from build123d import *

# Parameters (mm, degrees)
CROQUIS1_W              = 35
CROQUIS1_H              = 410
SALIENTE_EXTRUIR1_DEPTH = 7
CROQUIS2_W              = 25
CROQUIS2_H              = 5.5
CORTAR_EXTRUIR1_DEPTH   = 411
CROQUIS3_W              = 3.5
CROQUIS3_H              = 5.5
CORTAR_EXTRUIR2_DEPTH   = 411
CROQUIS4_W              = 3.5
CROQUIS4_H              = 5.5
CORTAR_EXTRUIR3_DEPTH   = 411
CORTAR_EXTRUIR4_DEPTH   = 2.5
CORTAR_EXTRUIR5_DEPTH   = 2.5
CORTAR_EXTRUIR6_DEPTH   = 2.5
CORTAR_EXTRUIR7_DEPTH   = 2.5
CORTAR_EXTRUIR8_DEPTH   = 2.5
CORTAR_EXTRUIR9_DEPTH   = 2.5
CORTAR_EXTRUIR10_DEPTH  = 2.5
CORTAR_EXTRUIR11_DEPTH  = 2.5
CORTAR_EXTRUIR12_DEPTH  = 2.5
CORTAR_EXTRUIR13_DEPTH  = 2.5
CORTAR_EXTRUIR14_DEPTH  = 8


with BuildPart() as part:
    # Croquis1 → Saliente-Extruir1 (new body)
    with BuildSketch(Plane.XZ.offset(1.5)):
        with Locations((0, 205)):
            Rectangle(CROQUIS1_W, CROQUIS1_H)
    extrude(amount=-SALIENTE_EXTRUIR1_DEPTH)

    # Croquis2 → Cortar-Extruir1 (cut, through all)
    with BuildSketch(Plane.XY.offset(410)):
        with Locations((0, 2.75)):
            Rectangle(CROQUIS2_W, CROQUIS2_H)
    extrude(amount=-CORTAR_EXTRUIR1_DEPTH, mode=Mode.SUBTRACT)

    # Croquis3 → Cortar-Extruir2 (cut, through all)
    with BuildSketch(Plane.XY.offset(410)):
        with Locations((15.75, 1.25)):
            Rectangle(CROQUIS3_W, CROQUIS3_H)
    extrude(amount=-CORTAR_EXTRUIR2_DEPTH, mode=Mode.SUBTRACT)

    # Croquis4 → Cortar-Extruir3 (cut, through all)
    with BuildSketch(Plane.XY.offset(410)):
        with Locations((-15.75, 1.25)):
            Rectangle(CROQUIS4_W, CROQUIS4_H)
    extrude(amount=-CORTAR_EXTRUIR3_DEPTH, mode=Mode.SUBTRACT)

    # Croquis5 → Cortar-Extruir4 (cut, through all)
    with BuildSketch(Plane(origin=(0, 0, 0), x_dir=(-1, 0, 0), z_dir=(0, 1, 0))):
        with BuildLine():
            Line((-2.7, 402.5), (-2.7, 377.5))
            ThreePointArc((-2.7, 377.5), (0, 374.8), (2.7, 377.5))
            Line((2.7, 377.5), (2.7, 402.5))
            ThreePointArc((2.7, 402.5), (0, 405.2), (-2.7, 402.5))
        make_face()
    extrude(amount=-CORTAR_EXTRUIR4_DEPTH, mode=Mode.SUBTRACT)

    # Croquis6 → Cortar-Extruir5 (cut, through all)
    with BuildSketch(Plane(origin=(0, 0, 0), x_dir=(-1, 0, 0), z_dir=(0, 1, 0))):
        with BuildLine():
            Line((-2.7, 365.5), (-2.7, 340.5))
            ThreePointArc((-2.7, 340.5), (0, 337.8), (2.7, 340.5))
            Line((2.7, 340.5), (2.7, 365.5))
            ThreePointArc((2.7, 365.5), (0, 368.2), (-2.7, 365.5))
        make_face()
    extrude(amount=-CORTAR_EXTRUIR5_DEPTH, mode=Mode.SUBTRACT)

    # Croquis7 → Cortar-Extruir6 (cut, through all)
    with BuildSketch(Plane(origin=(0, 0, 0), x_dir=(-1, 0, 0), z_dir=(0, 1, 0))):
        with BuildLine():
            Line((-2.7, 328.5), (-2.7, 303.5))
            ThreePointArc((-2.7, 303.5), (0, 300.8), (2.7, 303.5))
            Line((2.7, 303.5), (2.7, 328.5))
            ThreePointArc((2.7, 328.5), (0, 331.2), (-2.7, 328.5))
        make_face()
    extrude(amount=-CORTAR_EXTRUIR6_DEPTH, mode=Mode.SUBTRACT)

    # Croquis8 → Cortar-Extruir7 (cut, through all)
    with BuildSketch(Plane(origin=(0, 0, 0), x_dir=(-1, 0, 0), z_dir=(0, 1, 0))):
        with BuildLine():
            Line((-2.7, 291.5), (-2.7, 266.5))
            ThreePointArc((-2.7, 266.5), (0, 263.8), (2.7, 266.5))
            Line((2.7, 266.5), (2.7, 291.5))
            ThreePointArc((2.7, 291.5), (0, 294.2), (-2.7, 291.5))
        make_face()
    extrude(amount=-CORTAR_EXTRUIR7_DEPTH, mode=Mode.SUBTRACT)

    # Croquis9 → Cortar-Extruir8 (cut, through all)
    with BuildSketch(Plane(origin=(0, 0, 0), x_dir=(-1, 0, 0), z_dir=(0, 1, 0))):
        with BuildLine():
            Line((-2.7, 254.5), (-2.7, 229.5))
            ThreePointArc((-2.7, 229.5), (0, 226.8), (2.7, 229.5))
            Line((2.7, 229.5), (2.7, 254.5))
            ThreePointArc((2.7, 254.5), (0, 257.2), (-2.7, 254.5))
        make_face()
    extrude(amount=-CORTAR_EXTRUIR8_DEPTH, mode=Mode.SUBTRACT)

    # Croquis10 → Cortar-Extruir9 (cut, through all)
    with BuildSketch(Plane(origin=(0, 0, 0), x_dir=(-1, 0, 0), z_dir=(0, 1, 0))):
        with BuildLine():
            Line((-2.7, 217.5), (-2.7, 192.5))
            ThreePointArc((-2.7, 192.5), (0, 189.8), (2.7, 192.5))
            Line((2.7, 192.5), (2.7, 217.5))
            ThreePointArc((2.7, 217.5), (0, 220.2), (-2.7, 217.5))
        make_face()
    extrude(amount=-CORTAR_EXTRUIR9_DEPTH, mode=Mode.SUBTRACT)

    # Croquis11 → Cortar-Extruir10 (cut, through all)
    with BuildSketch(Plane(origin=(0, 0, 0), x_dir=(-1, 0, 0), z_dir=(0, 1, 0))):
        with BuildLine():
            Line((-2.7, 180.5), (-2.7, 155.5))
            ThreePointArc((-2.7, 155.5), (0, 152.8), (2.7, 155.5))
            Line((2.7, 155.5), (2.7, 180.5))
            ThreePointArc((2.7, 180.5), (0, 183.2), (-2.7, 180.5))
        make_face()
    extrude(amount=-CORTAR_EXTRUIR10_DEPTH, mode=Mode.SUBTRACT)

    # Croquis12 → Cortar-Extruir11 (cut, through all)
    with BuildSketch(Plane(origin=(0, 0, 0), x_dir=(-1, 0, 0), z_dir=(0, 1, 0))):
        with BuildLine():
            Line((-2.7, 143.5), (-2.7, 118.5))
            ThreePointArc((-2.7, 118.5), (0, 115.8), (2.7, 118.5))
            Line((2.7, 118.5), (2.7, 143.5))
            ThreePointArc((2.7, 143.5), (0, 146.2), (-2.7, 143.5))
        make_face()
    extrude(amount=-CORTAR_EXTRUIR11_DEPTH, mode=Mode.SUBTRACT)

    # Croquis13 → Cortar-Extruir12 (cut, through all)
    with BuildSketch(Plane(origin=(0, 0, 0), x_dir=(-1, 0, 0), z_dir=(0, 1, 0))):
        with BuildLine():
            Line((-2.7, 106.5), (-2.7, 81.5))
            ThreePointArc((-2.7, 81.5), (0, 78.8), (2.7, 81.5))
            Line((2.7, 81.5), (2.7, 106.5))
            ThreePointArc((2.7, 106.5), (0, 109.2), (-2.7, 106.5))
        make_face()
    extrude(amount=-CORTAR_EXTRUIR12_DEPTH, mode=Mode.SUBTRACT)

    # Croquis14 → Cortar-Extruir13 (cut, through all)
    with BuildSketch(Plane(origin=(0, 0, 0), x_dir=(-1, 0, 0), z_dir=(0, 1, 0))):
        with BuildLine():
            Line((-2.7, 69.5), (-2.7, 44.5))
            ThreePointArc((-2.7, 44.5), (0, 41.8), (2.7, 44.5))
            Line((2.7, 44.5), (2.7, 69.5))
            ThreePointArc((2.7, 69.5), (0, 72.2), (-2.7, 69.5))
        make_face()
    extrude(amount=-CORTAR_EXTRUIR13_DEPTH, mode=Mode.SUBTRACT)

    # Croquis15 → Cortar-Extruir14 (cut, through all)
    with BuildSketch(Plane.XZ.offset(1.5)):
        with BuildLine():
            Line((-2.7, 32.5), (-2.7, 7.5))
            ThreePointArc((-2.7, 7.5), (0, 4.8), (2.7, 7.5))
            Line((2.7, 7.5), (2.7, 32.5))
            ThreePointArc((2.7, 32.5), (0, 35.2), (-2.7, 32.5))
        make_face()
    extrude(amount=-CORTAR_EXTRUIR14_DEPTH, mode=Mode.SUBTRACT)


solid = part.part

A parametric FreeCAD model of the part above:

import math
import FreeCAD as App
import Part
import Sketcher
from FreeCAD import Vector
Q = App.Units.Quantity

doc = App.newDocument("Part")
body = doc.addObject("PartDesign::Body", "Body")

sketch1 = body.newObject("Sketcher::SketchObject", "Sketch")
sketch1.AttachmentSupport = (doc.getObject("XZ_Plane"), [""])
sketch1.MapMode = "FlatFace"
sketch1.AttachmentOffset = App.Placement(Vector(0, 0, 1.5), App.Rotation())
sketch1.addGeometry([
    Part.LineSegment(Vector(-18, 410, 0), Vector(-18, 0, 0)),
    Part.LineSegment(Vector(-18, 0, 0), Vector(18, 0, 0)),
    Part.LineSegment(Vector(18, 0, 0), Vector(18, 410, 0)),
    Part.LineSegment(Vector(18, 410, 0), Vector(-18, 410, 0)),
], False)
sketch1.addConstraint([
    Sketcher.Constraint("Coincident", 0, 2, 1, 1),
    Sketcher.Constraint("Coincident", 1, 2, 2, 1),
    Sketcher.Constraint("Coincident", 2, 2, 3, 1),
    Sketcher.Constraint("Coincident", 3, 2, 0, 1),
    Sketcher.Constraint("Vertical", 0),
    Sketcher.Constraint("Horizontal", 1),
    Sketcher.Constraint("Vertical", 2),
    Sketcher.Constraint("Horizontal", 3),
    Sketcher.Constraint("Symmetric", 0, 2, 1, 2, -1, 1),
    Sketcher.Constraint("DistanceX", 1, 1, 1, 2, Q("35 mm")),
    Sketcher.Constraint("DistanceY", 0, 2, 0, 1, Q("410 mm")),
])
pad1 = body.newObject("PartDesign::Pad", "Pad")
pad1.Profile = sketch1
pad1.Length = 7
pad1.Reversed = True

sketch2 = body.newObject("Sketcher::SketchObject", "Sketch001")
sketch2.AttachmentSupport = (doc.getObject("XY_Plane"), [""])
sketch2.MapMode = "FlatFace"
sketch2.AttachmentOffset = App.Placement(Vector(0, 0, 410), App.Rotation())
sketch2.addGeometry([
    Part.LineSegment(Vector(-12, 6, 0), Vector(-12, 0, 0)),
    Part.LineSegment(Vector(-12, 0, 0), Vector(12, 0, 0)),
    Part.LineSegment(Vector(12, 0, 0), Vector(12, 6, 0)),
    Part.LineSegment(Vector(12, 6, 0), Vector(-12, 6, 0)),
], False)
sketch2.addConstraint([
    Sketcher.Constraint("Coincident", 0, 2, 1, 1),
    Sketcher.Constraint("Coincident", 1, 2, 2, 1),
    Sketcher.Constraint("Coincident", 2, 2, 3, 1),
    Sketcher.Constraint("Coincident", 3, 2, 0, 1),
    Sketcher.Constraint("Vertical", 0),
    Sketcher.Constraint("Horizontal", 1),
    Sketcher.Constraint("Vertical", 2),
    Sketcher.Constraint("Horizontal", 3),
    Sketcher.Constraint("Symmetric", 0, 2, 1, 2, -1, 1),
    Sketcher.Constraint("DistanceX", 1, 1, 1, 2, Q("25 mm")),
    Sketcher.Constraint("DistanceY", 0, 2, 0, 1, Q("5.5 mm")),
])
pocket1 = body.newObject("PartDesign::Pocket", "Pocket")
pocket1.Profile = sketch2
pocket1.Type = "ThroughAll"

sketch3 = body.newObject("Sketcher::SketchObject", "Sketch002")
sketch3.AttachmentSupport = (doc.getObject("XY_Plane"), [""])
sketch3.MapMode = "FlatFace"
sketch3.AttachmentOffset = App.Placement(Vector(0, 0, 410), App.Rotation())
sketch3.addGeometry([
    Part.LineSegment(Vector(14, 4, 0), Vector(14, -1.5, 0)),
    Part.LineSegment(Vector(14, -1.5, 0), Vector(17.5, -1.5, 0)),
    Part.LineSegment(Vector(17.5, -1.5, 0), Vector(17.5, 4, 0)),
    Part.LineSegment(Vector(17.5, 4, 0), Vector(14, 4, 0)),
], False)
sketch3.addConstraint([
    Sketcher.Constraint("Coincident", 0, 2, 1, 1),
    Sketcher.Constraint("Coincident", 1, 2, 2, 1),
    Sketcher.Constraint("Coincident", 2, 2, 3, 1),
    Sketcher.Constraint("Coincident", 3, 2, 0, 1),
    Sketcher.Constraint("Vertical", 0),
    Sketcher.Constraint("Horizontal", 1),
    Sketcher.Constraint("Vertical", 2),
    Sketcher.Constraint("Horizontal", 3),
    Sketcher.Constraint("DistanceX", 1, 1, 1, 2, Q("3.5 mm")),
    Sketcher.Constraint("DistanceY", 0, 2, 0, 1, Q("5.5 mm")),
    Sketcher.Constraint("DistanceX", -1, 1, 0, 2, Q("14 mm")),
    Sketcher.Constraint("DistanceY", -1, 1, 2, 2, Q("4 mm")),
])
pocket2 = body.newObject("PartDesign::Pocket", "Pocket001")
pocket2.Profile = sketch3
pocket2.Type = "ThroughAll"

sketch4 = body.newObject("Sketcher::SketchObject", "Sketch003")
sketch4.AttachmentSupport = (doc.getObject("XY_Plane"), [""])
sketch4.MapMode = "FlatFace"
sketch4.AttachmentOffset = App.Placement(Vector(0, 0, 410), App.Rotation())
sketch4.addGeometry([
    Part.LineSegment(Vector(-17.5, 4, 0), Vector(-17.5, -1.5, 0)),
    Part.LineSegment(Vector(-17.5, -1.5, 0), Vector(-14, -1.5, 0)),
    Part.LineSegment(Vector(-14, -1.5, 0), Vector(-14, 4, 0)),
    Part.LineSegment(Vector(-14, 4, 0), Vector(-17.5, 4, 0)),
], False)
sketch4.addConstraint([
    Sketcher.Constraint("Coincident", 0, 2, 1, 1),
    Sketcher.Constraint("Coincident", 1, 2, 2, 1),
    Sketcher.Constraint("Coincident", 2, 2, 3, 1),
    Sketcher.Constraint("Coincident", 3, 2, 0, 1),
    Sketcher.Constraint("Vertical", 0),
    Sketcher.Constraint("Horizontal", 1),
    Sketcher.Constraint("Vertical", 2),
    Sketcher.Constraint("Horizontal", 3),
    Sketcher.Constraint("DistanceX", 1, 1, 1, 2, Q("3.5 mm")),
    Sketcher.Constraint("DistanceY", 0, 2, 0, 1, Q("5.5 mm")),
    Sketcher.Constraint("DistanceX", 1, 2, -1, 1, Q("14 mm")),
    Sketcher.Constraint("DistanceY", -1, 1, 2, 2, Q("4 mm")),
])
pocket3 = body.newObject("PartDesign::Pocket", "Pocket002")
pocket3.Profile = sketch4
pocket3.Type = "ThroughAll"

sketch5 = body.newObject("Sketcher::SketchObject", "Sketch004")
sketch5.AttachmentSupport = (doc.getObject("XZ_Plane"), [""])
sketch5.MapMode = "FlatFace"
sketch5.addGeometry([
    Part.LineSegment(Vector(2.7, 402.5, 0), Vector(2.7, 377.5, 0)),
    Part.ArcOfCircle(Part.Circle(Vector(0, 377.5, 0), Vector(0, 0, 1), 2.7), math.radians(180), math.radians(360)),
    Part.LineSegment(Vector(-2.7, 377.5, 0), Vector(-2.7, 402.5, 0)),
    Part.ArcOfCircle(Part.Circle(Vector(0, 402.5, 0), Vector(0, 0, 1), 2.7), math.radians(0), math.radians(180)),
], False)
sketch5.addConstraint([
    Sketcher.Constraint("Tangent", 0, 2, 1, 2),
    Sketcher.Constraint("Tangent", 1, 1, 2, 1),
    Sketcher.Constraint("Tangent", 2, 2, 3, 2),
    Sketcher.Constraint("Tangent", 3, 1, 0, 1),
    Sketcher.Constraint("Vertical", 0),
    Sketcher.Constraint("Vertical", 2),
    Sketcher.Constraint("PointOnObject", 1, 3, -2),
    Sketcher.Constraint("Radius", 1, Q("2.7 mm")),
    Sketcher.Constraint("DistanceY", 0, 2, 0, 1, Q("25 mm")),
    Sketcher.Constraint("DistanceY", -1, 1, 1, 3, Q("377.5 mm")),
])
pocket4 = body.newObject("PartDesign::Pocket", "Pocket003")
pocket4.Profile = sketch5
pocket4.Type = "ThroughAll"
pocket4.Reversed = True

sketch6 = body.newObject("Sketcher::SketchObject", "Sketch005")
sketch6.AttachmentSupport = (doc.getObject("XZ_Plane"), [""])
sketch6.MapMode = "FlatFace"
sketch6.addGeometry([
    Part.LineSegment(Vector(2.7, 365.5, 0), Vector(2.7, 340.5, 0)),
    Part.ArcOfCircle(Part.Circle(Vector(0, 340.5, 0), Vector(0, 0, 1), 2.7), math.radians(180), math.radians(360)),
    Part.LineSegment(Vector(-2.7, 340.5, 0), Vector(-2.7, 365.5, 0)),
    Part.ArcOfCircle(Part.Circle(Vector(0, 365.5, 0), Vector(0, 0, 1), 2.7), math.radians(0), math.radians(180)),
], False)
sketch6.addConstraint([
    Sketcher.Constraint("Tangent", 0, 2, 1, 2),
    Sketcher.Constraint("Tangent", 1, 1, 2, 1),
    Sketcher.Constraint("Tangent", 2, 2, 3, 2),
    Sketcher.Constraint("Tangent", 3, 1, 0, 1),
    Sketcher.Constraint("Vertical", 0),
    Sketcher.Constraint("Vertical", 2),
    Sketcher.Constraint("PointOnObject", 1, 3, -2),
    Sketcher.Constraint("Radius", 1, Q("2.7 mm")),
    Sketcher.Constraint("DistanceY", 0, 2, 0, 1, Q("25 mm")),
    Sketcher.Constraint("DistanceY", -1, 1, 1, 3, Q("340.5 mm")),
])
pocket5 = body.newObject("PartDesign::Pocket", "Pocket004")
pocket5.Profile = sketch6
pocket5.Type = "ThroughAll"
pocket5.Reversed = True

sketch7 = body.newObject("Sketcher::SketchObject", "Sketch006")
sketch7.AttachmentSupport = (doc.getObject("XZ_Plane"), [""])
sketch7.MapMode = "FlatFace"
sketch7.addGeometry([
    Part.LineSegment(Vector(2.7, 328.5, 0), Vector(2.7, 303.5, 0)),
    Part.ArcOfCircle(Part.Circle(Vector(0, 303.5, 0), Vector(0, 0, 1), 2.7), math.radians(180), math.radians(360)),
    Part.LineSegment(Vector(-2.7, 303.5, 0), Vector(-2.7, 328.5, 0)),
    Part.ArcOfCircle(Part.Circle(Vector(0, 328.5, 0), Vector(0, 0, 1), 2.7), math.radians(0), math.radians(180)),
], False)
sketch7.addConstraint([
    Sketcher.Constraint("Tangent", 0, 2, 1, 2),
    Sketcher.Constraint("Tangent", 1, 1, 2, 1),
    Sketcher.Constraint("Tangent", 2, 2, 3, 2),
    Sketcher.Constraint("Tangent", 3, 1, 0, 1),
    Sketcher.Constraint("Vertical", 0),
    Sketcher.Constraint("Vertical", 2),
    Sketcher.Constraint("PointOnObject", 1, 3, -2),
    Sketcher.Constraint("Radius", 1, Q("2.7 mm")),
    Sketcher.Constraint("DistanceY", 0, 2, 0, 1, Q("25 mm")),
    Sketcher.Constraint("DistanceY", -1, 1, 1, 3, Q("303.5 mm")),
])
pocket6 = body.newObject("PartDesign::Pocket", "Pocket005")
pocket6.Profile = sketch7
pocket6.Type = "ThroughAll"
pocket6.Reversed = True

sketch8 = body.newObject("Sketcher::SketchObject", "Sketch007")
sketch8.AttachmentSupport = (doc.getObject("XZ_Plane"), [""])
sketch8.MapMode = "FlatFace"
sketch8.addGeometry([
    Part.LineSegment(Vector(2.7, 291.5, 0), Vector(2.7, 266.5, 0)),
    Part.ArcOfCircle(Part.Circle(Vector(0, 266.5, 0), Vector(0, 0, 1), 2.7), math.radians(180), math.radians(360)),
    Part.LineSegment(Vector(-2.7, 266.5, 0), Vector(-2.7, 291.5, 0)),
    Part.ArcOfCircle(Part.Circle(Vector(0, 291.5, 0), Vector(0, 0, 1), 2.7), math.radians(0), math.radians(180)),
], False)
sketch8.addConstraint([
    Sketcher.Constraint("Tangent", 0, 2, 1, 2),
    Sketcher.Constraint("Tangent", 1, 1, 2, 1),
    Sketcher.Constraint("Tangent", 2, 2, 3, 2),
    Sketcher.Constraint("Tangent", 3, 1, 0, 1),
    Sketcher.Constraint("Vertical", 0),
    Sketcher.Constraint("Vertical", 2),
    Sketcher.Constraint("PointOnObject", 1, 3, -2),
    Sketcher.Constraint("Radius", 1, Q("2.7 mm")),
    Sketcher.Constraint("DistanceY", 0, 2, 0, 1, Q("25 mm")),
    Sketcher.Constraint("DistanceY", -1, 1, 1, 3, Q("266.5 mm")),
])
pocket7 = body.newObject("PartDesign::Pocket", "Pocket006")
pocket7.Profile = sketch8
pocket7.Type = "ThroughAll"
pocket7.Reversed = True

sketch9 = body.newObject("Sketcher::SketchObject", "Sketch008")
sketch9.AttachmentSupport = (doc.getObject("XZ_Plane"), [""])
sketch9.MapMode = "FlatFace"
sketch9.addGeometry([
    Part.LineSegment(Vector(2.7, 254.5, 0), Vector(2.7, 229.5, 0)),
    Part.ArcOfCircle(Part.Circle(Vector(0, 229.5, 0), Vector(0, 0, 1), 2.7), math.radians(180), math.radians(360)),
    Part.LineSegment(Vector(-2.7, 229.5, 0), Vector(-2.7, 254.5, 0)),
    Part.ArcOfCircle(Part.Circle(Vector(0, 254.5, 0), Vector(0, 0, 1), 2.7), math.radians(0), math.radians(180)),
], False)
sketch9.addConstraint([
    Sketcher.Constraint("Tangent", 0, 2, 1, 2),
    Sketcher.Constraint("Tangent", 1, 1, 2, 1),
    Sketcher.Constraint("Tangent", 2, 2, 3, 2),
    Sketcher.Constraint("Tangent", 3, 1, 0, 1),
    Sketcher.Constraint("Vertical", 0),
    Sketcher.Constraint("Vertical", 2),
    Sketcher.Constraint("PointOnObject", 1, 3, -2),
    Sketcher.Constraint("Radius", 1, Q("2.7 mm")),
    Sketcher.Constraint("DistanceY", 0, 2, 0, 1, Q("25 mm")),
    Sketcher.Constraint("DistanceY", -1, 1, 1, 3, Q("229.5 mm")),
])
pocket8 = body.newObject("PartDesign::Pocket", "Pocket007")
pocket8.Profile = sketch9
pocket8.Type = "ThroughAll"
pocket8.Reversed = True

sketch10 = body.newObject("Sketcher::SketchObject", "Sketch009")
sketch10.AttachmentSupport = (doc.getObject("XZ_Plane"), [""])
sketch10.MapMode = "FlatFace"
sketch10.addGeometry([
    Part.LineSegment(Vector(2.7, 217.5, 0), Vector(2.7, 192.5, 0)),
    Part.ArcOfCircle(Part.Circle(Vector(0, 192.5, 0), Vector(0, 0, 1), 2.7), math.radians(180), math.radians(360)),
    Part.LineSegment(Vector(-2.7, 192.5, 0), Vector(-2.7, 217.5, 0)),
    Part.ArcOfCircle(Part.Circle(Vector(0, 217.5, 0), Vector(0, 0, 1), 2.7), math.radians(0), math.radians(180)),
], False)
sketch10.addConstraint([
    Sketcher.Constraint("Tangent", 0, 2, 1, 2),
    Sketcher.Constraint("Tangent", 1, 1, 2, 1),
    Sketcher.Constraint("Tangent", 2, 2, 3, 2),
    Sketcher.Constraint("Tangent", 3, 1, 0, 1),
    Sketcher.Constraint("Vertical", 0),
    Sketcher.Constraint("Vertical", 2),
    Sketcher.Constraint("PointOnObject", 1, 3, -2),
    Sketcher.Constraint("Radius", 1, Q("2.7 mm")),
    Sketcher.Constraint("DistanceY", 0, 2, 0, 1, Q("25 mm")),
    Sketcher.Constraint("DistanceY", -1, 1, 1, 3, Q("192.5 mm")),
])
pocket9 = body.newObject("PartDesign::Pocket", "Pocket008")
pocket9.Profile = sketch10
pocket9.Type = "ThroughAll"
pocket9.Reversed = True

sketch11 = body.newObject("Sketcher::SketchObject", "Sketch010")
sketch11.AttachmentSupport = (doc.getObject("XZ_Plane"), [""])
sketch11.MapMode = "FlatFace"
sketch11.addGeometry([
    Part.LineSegment(Vector(2.7, 180.5, 0), Vector(2.7, 155.5, 0)),
    Part.ArcOfCircle(Part.Circle(Vector(0, 155.5, 0), Vector(0, 0, 1), 2.7), math.radians(180), math.radians(360)),
    Part.LineSegment(Vector(-2.7, 155.5, 0), Vector(-2.7, 180.5, 0)),
    Part.ArcOfCircle(Part.Circle(Vector(0, 180.5, 0), Vector(0, 0, 1), 2.7), math.radians(0), math.radians(180)),
], False)
sketch11.addConstraint([
    Sketcher.Constraint("Tangent", 0, 2, 1, 2),
    Sketcher.Constraint("Tangent", 1, 1, 2, 1),
    Sketcher.Constraint("Tangent", 2, 2, 3, 2),
    Sketcher.Constraint("Tangent", 3, 1, 0, 1),
    Sketcher.Constraint("Vertical", 0),
    Sketcher.Constraint("Vertical", 2),
    Sketcher.Constraint("PointOnObject", 1, 3, -2),
    Sketcher.Constraint("Radius", 1, Q("2.7 mm")),
    Sketcher.Constraint("DistanceY", 0, 2, 0, 1, Q("25 mm")),
    Sketcher.Constraint("DistanceY", -1, 1, 1, 3, Q("155.5 mm")),
])
pocket10 = body.newObject("PartDesign::Pocket", "Pocket009")
pocket10.Profile = sketch11
pocket10.Type = "ThroughAll"
pocket10.Reversed = True

sketch12 = body.newObject("Sketcher::SketchObject", "Sketch011")
sketch12.AttachmentSupport = (doc.getObject("XZ_Plane"), [""])
sketch12.MapMode = "FlatFace"
sketch12.addGeometry([
    Part.LineSegment(Vector(2.7, 143.5, 0), Vector(2.7, 118.5, 0)),
    Part.ArcOfCircle(Part.Circle(Vector(0, 118.5, 0), Vector(0, 0, 1), 2.7), math.radians(180), math.radians(360)),
    Part.LineSegment(Vector(-2.7, 118.5, 0), Vector(-2.7, 143.5, 0)),
    Part.ArcOfCircle(Part.Circle(Vector(0, 143.5, 0), Vector(0, 0, 1), 2.7), math.radians(0), math.radians(180)),
], False)
sketch12.addConstraint([
    Sketcher.Constraint("Tangent", 0, 2, 1, 2),
    Sketcher.Constraint("Tangent", 1, 1, 2, 1),
    Sketcher.Constraint("Tangent", 2, 2, 3, 2),
    Sketcher.Constraint("Tangent", 3, 1, 0, 1),
    Sketcher.Constraint("Vertical", 0),
    Sketcher.Constraint("Vertical", 2),
    Sketcher.Constraint("PointOnObject", 1, 3, -2),
    Sketcher.Constraint("Radius", 1, Q("2.7 mm")),
    Sketcher.Constraint("DistanceY", 0, 2, 0, 1, Q("25 mm")),
    Sketcher.Constraint("DistanceY", -1, 1, 1, 3, Q("118.5 mm")),
])
pocket11 = body.newObject("PartDesign::Pocket", "Pocket010")
pocket11.Profile = sketch12
pocket11.Type = "ThroughAll"
pocket11.Reversed = True

sketch13 = body.newObject("Sketcher::SketchObject", "Sketch012")
sketch13.AttachmentSupport = (doc.getObject("XZ_Plane"), [""])
sketch13.MapMode = "FlatFace"
sketch13.addGeometry([
    Part.LineSegment(Vector(2.7, 106.5, 0), Vector(2.7, 81.5, 0)),
    Part.ArcOfCircle(Part.Circle(Vector(0, 81.5, 0), Vector(0, 0, 1), 2.7), math.radians(180), math.radians(360)),
    Part.LineSegment(Vector(-2.7, 81.5, 0), Vector(-2.7, 106.5, 0)),
    Part.ArcOfCircle(Part.Circle(Vector(0, 106.5, 0), Vector(0, 0, 1), 2.7), math.radians(0), math.radians(180)),
], False)
sketch13.addConstraint([
    Sketcher.Constraint("Tangent", 0, 2, 1, 2),
    Sketcher.Constraint("Tangent", 1, 1, 2, 1),
    Sketcher.Constraint("Tangent", 2, 2, 3, 2),
    Sketcher.Constraint("Tangent", 3, 1, 0, 1),
    Sketcher.Constraint("Vertical", 0),
    Sketcher.Constraint("Vertical", 2),
    Sketcher.Constraint("PointOnObject", 1, 3, -2),
    Sketcher.Constraint("Radius", 1, Q("2.7 mm")),
    Sketcher.Constraint("DistanceY", 0, 2, 0, 1, Q("25 mm")),
    Sketcher.Constraint("DistanceY", -1, 1, 1, 3, Q("81.5 mm")),
])
pocket12 = body.newObject("PartDesign::Pocket", "Pocket011")
pocket12.Profile = sketch13
pocket12.Type = "ThroughAll"
pocket12.Reversed = True

sketch14 = body.newObject("Sketcher::SketchObject", "Sketch013")
sketch14.AttachmentSupport = (doc.getObject("XZ_Plane"), [""])
sketch14.MapMode = "FlatFace"
sketch14.addGeometry([
    Part.LineSegment(Vector(2.7, 69.5, 0), Vector(2.7, 44.5, 0)),
    Part.ArcOfCircle(Part.Circle(Vector(0, 44.5, 0), Vector(0, 0, 1), 2.7), math.radians(180), math.radians(360)),
    Part.LineSegment(Vector(-2.7, 44.5, 0), Vector(-2.7, 69.5, 0)),
    Part.ArcOfCircle(Part.Circle(Vector(0, 69.5, 0), Vector(0, 0, 1), 2.7), math.radians(0), math.radians(180)),
], False)
sketch14.addConstraint([
    Sketcher.Constraint("Tangent", 0, 2, 1, 2),
    Sketcher.Constraint("Tangent", 1, 1, 2, 1),
    Sketcher.Constraint("Tangent", 2, 2, 3, 2),
    Sketcher.Constraint("Tangent", 3, 1, 0, 1),
    Sketcher.Constraint("Vertical", 0),
    Sketcher.Constraint("Vertical", 2),
    Sketcher.Constraint("PointOnObject", 1, 3, -2),
    Sketcher.Constraint("Radius", 1, Q("2.7 mm")),
    Sketcher.Constraint("DistanceY", 0, 2, 0, 1, Q("25 mm")),
    Sketcher.Constraint("DistanceY", -1, 1, 1, 3, Q("44.5 mm")),
])
pocket13 = body.newObject("PartDesign::Pocket", "Pocket012")
pocket13.Profile = sketch14
pocket13.Type = "ThroughAll"
pocket13.Reversed = True

sketch15 = body.newObject("Sketcher::SketchObject", "Sketch014")
sketch15.AttachmentSupport = (doc.getObject("XZ_Plane"), [""])
sketch15.MapMode = "FlatFace"
sketch15.AttachmentOffset = App.Placement(Vector(0, 0, 1.5), App.Rotation())
sketch15.addGeometry([
    Part.LineSegment(Vector(-2.7, 32.5, 0), Vector(-2.7, 7.5, 0)),
    Part.ArcOfCircle(Part.Circle(Vector(0, 7.5, 0), Vector(0, 0, 1), 2.7), math.radians(180), math.radians(360)),
    Part.LineSegment(Vector(2.7, 7.5, 0), Vector(2.7, 32.5, 0)),
    Part.ArcOfCircle(Part.Circle(Vector(0, 32.5, 0), Vector(0, 0, 1), 2.7), math.radians(0), math.radians(180)),
], False)
sketch15.addConstraint([
    Sketcher.Constraint("Tangent", 0, 2, 1, 1),
    Sketcher.Constraint("Tangent", 1, 2, 2, 1),
    Sketcher.Constraint("Tangent", 2, 2, 3, 1),
    Sketcher.Constraint("Tangent", 3, 2, 0, 1),
    Sketcher.Constraint("Vertical", 0),
    Sketcher.Constraint("Vertical", 2),
    Sketcher.Constraint("PointOnObject", 1, 3, -2),
    Sketcher.Constraint("Radius", 1, Q("2.7 mm")),
    Sketcher.Constraint("DistanceY", 0, 2, 0, 1, Q("25 mm")),
    Sketcher.Constraint("DistanceY", -1, 1, 1, 3, Q("7.5 mm")),
])
pocket14 = body.newObject("PartDesign::Pocket", "Pocket013")
pocket14.Profile = sketch15
pocket14.Type = "ThroughAll"

doc.recompute()
